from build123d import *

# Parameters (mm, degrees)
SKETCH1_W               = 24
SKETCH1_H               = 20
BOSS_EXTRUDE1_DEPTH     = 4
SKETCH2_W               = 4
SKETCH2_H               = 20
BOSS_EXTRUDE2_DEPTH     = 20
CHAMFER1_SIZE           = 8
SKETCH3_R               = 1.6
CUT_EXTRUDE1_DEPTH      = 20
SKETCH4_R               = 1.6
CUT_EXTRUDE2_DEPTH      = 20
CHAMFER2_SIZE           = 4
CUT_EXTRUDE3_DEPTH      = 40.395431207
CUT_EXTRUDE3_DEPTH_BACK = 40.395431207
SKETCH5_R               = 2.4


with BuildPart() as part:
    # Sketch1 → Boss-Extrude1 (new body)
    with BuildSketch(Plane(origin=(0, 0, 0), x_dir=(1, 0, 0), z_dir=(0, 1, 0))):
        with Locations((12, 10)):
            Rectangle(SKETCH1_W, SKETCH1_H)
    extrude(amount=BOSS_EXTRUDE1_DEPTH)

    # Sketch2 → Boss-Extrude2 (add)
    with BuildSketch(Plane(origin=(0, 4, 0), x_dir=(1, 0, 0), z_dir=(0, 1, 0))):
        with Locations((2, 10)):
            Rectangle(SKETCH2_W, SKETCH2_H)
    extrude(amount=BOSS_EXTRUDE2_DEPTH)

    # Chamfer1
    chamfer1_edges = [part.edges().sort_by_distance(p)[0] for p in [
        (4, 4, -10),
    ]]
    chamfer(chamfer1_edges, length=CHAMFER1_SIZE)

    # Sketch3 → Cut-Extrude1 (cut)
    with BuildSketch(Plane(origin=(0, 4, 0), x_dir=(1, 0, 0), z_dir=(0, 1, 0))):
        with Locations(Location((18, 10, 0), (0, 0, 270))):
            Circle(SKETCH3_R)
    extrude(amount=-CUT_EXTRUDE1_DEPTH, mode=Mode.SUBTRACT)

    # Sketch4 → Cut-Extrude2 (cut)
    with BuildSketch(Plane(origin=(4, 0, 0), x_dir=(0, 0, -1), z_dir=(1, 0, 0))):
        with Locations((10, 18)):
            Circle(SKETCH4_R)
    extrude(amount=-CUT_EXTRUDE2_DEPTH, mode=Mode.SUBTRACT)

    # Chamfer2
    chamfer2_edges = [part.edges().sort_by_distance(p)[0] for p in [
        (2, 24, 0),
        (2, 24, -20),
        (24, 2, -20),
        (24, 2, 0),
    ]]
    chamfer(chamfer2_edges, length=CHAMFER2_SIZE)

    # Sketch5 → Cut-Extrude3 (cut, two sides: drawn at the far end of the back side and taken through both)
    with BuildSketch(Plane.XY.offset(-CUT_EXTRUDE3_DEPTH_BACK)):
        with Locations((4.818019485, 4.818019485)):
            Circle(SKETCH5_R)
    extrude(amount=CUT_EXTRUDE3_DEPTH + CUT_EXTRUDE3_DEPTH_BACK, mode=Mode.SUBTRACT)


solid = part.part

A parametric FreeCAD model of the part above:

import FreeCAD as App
import Part
import Sketcher

V = App.Vector
Q = App.Units.Quantity


def edges_at(feature, points):
    """Names of the edges that pass closest to the given points."""
    edges = feature.Shape.Edges
    near = lambda p: min(range(len(edges)), key=lambda i: edges[i].distToShape(Part.Vertex(*p))[0])
    return sorted({f"Edge{near(p) + 1}" for p in points})

doc = App.newDocument("Part")
body = doc.addObject("PartDesign::Body", "Body")

# Sketch on XZ plane
sketch1 = body.newObject("Sketcher::SketchObject", "Sketch")
sketch1.AttachmentSupport = (doc.getObject("XZ_Plane"), [""])
sketch1.MapMode = "FlatFace"
sketch1.addGeometry(Part.LineSegment(V(0, -20, 0), V(0, 0, 0)), False)
sketch1.addGeometry(Part.LineSegment(V(0, 0, 0), V(24, 0, 0)), False)
sketch1.addGeometry(Part.LineSegment(V(24, 0, 0), V(24, -20, 0)), False)
sketch1.addGeometry(Part.LineSegment(V(24, -20, 0), V(0, -20, 0)), False)
sketch1.addConstraint(Sketcher.Constraint("Coincident", 0, 2, 1, 1))
sketch1.addConstraint(Sketcher.Constraint("Coincident", 1, 2, 2, 1))
sketch1.addConstraint(Sketcher.Constraint("Coincident", 2, 2, 3, 1))
sketch1.addConstraint(Sketcher.Constraint("Coincident", 3, 2, 0, 1))
sketch1.addConstraint(Sketcher.Constraint("Vertical", 0))
sketch1.addConstraint(Sketcher.Constraint("Horizontal", 1))
sketch1.addConstraint(Sketcher.Constraint("Vertical", 2))
sketch1.addConstraint(Sketcher.Constraint("Horizontal", 3))
sketch1.addConstraint(Sketcher.Constraint("Coincident", 0, 2, -1, 1))
sketch1.addConstraint(Sketcher.Constraint("DistanceX", 1, 1, 1, 2, Q("24 mm")))
sketch1.addConstraint(Sketcher.Constraint("DistanceY", 0, 1, 0, 2, Q("20 mm")))
pad1 = body.newObject("PartDesign::Pad", "Pad")
pad1.Profile = sketch1
pad1.Length = 4
pad1.Reversed = True

# Sketch on XZ plane
sketch2 = body.newObject("Sketcher::SketchObject", "Sketch001")
sketch2.AttachmentSupport = (doc.getObject("XZ_Plane"), [""])
sketch2.MapMode = "FlatFace"
sketch2.AttachmentOffset = App.Placement(V(0, 0, -4), App.Rotation())
sketch2.addGeometry(Part.LineSegment(V(0, -20, 0), V(0, 0, 0)), False)
sketch2.addGeometry(Part.LineSegment(V(0, 0, 0), V(4, 0, 0)), False)
sketch2.addGeometry(Part.LineSegment(V(4, 0, 0), V(4, -20, 0)), False)
sketch2.addGeometry(Part.LineSegment(V(4, -20, 0), V(0, -20, 0)), False)
sketch2.addConstraint(Sketcher.Constraint("Coincident", 0, 2, 1, 1))
sketch2.addConstraint(Sketcher.Constraint("Coincident", 1, 2, 2, 1))
sketch2.addConstraint(Sketcher.Constraint("Coincident", 2, 2, 3, 1))
sketch2.addConstraint(Sketcher.Constraint("Coincident", 3, 2, 0, 1))
sketch2.addConstraint(Sketcher.Constraint("Vertical", 0))
sketch2.addConstraint(Sketcher.Constraint("Horizontal", 1))
sketch2.addConstraint(Sketcher.Constraint("Vertical", 2))
sketch2.addConstraint(Sketcher.Constraint("Horizontal", 3))
sketch2.addConstraint(Sketcher.Constraint("Coincident", 0, 2, -1, 1))
sketch2.addConstraint(Sketcher.Constraint("DistanceX", 1, 1, 1, 2, Q("4 mm")))
sketch2.addConstraint(Sketcher.Constraint("DistanceY", 0, 1, 0, 2, Q("20 mm")))
pad2 = body.newObject("PartDesign::Pad", "Pad001")
pad2.Profile = sketch2
pad2.Length = 20
pad2.Reversed = True
doc.recompute()

chamfer = body.newObject("PartDesign::Chamfer", "Chamfer")
chamfer.Base = (pad2, edges_at(pad2, [(4, 4, -10)]))
chamfer.Size = 8

# Sketch on XZ plane
sketch3 = body.newObject("Sketcher::SketchObject", "Sketch002")
sketch3.AttachmentSupport = (doc.getObject("XZ_Plane"), [""])
sketch3.MapMode = "FlatFace"
sketch3.AttachmentOffset = App.Placement(V(0, 0, -4), App.Rotation())
sketch3.addGeometry(Part.Circle(V(18, -10, 0), V(0, 0, 1), 1.6), False)
sketch3.addConstraint(Sketcher.Constraint("Diameter", 0, Q("3.2 mm")))
sketch3.addConstraint(Sketcher.Constraint("DistanceX", -1, 1, 0, 3, Q("18 mm")))
sketch3.addConstraint(Sketcher.Constraint("DistanceY", 0, 3, -1, 1, Q("10 mm")))
pocket1 = body.newObject("PartDesign::Pocket", "Pocket")
pocket1.Profile = sketch3
pocket1.Length = 20
pocket1.Reversed = True

# Sketch on YZ plane
sketch4 = body.newObject("Sketcher::SketchObject", "Sketch003")
sketch4.AttachmentSupport = (doc.getObject("YZ_Plane"), [""])
sketch4.MapMode = "FlatFace"
sketch4.AttachmentOffset = App.Placement(V(0, 0, 4), App.Rotation())
sketch4.addGeometry(Part.Circle(V(18, -10, 0), V(0, 0, 1), 1.6), False)
sketch4.addConstraint(Sketcher.Constraint("Diameter", 0, Q("3.2 mm")))
sketch4.addConstraint(Sketcher.Constraint("DistanceX", -1, 1, 0, 3, Q("18 mm")))
sketch4.addConstraint(Sketcher.Constraint("DistanceY", 0, 3, -1, 1, Q("10 mm")))
pocket2 = body.newObject("PartDesign::Pocket", "Pocket001")
pocket2.Profile = sketch4
pocket2.Length = 20
doc.recompute()

chamfer2 = body.newObject("PartDesign::Chamfer", "Chamfer001")
chamfer2.Base = (pocket2, edges_at(pocket2, [
    (2, 24, 0),
    (2, 24, -20),
    (24, 2, -20),
    (24, 2, 0),
]))
chamfer2.Size = 4

# Sketch on XY plane
sketch5 = body.newObject("Sketcher::SketchObject", "Sketch004")
sketch5.AttachmentSupport = (doc.getObject("XY_Plane"), [""])
sketch5.MapMode = "FlatFace"
sketch5.addGeometry(Part.Circle(V(4.818019, 4.818019, 0), V(0, 0, 1), 2.4), False)
sketch5.addConstraint(Sketcher.Constraint("Diameter", 0, Q("4.8 mm")))
sketch5.addConstraint(Sketcher.Constraint("DistanceX", -1, 1, 0, 3, Q("4.818019 mm")))
sketch5.addConstraint(Sketcher.Constraint("DistanceY", -1, 1, 0, 3, Q("4.818019 mm")))
pocket3 = body.newObject("PartDesign::Pocket", "Pocket002")
pocket3.Profile = sketch5
pocket3.Type = "ThroughAll"
pocket3.Midplane = True

doc.recompute()
